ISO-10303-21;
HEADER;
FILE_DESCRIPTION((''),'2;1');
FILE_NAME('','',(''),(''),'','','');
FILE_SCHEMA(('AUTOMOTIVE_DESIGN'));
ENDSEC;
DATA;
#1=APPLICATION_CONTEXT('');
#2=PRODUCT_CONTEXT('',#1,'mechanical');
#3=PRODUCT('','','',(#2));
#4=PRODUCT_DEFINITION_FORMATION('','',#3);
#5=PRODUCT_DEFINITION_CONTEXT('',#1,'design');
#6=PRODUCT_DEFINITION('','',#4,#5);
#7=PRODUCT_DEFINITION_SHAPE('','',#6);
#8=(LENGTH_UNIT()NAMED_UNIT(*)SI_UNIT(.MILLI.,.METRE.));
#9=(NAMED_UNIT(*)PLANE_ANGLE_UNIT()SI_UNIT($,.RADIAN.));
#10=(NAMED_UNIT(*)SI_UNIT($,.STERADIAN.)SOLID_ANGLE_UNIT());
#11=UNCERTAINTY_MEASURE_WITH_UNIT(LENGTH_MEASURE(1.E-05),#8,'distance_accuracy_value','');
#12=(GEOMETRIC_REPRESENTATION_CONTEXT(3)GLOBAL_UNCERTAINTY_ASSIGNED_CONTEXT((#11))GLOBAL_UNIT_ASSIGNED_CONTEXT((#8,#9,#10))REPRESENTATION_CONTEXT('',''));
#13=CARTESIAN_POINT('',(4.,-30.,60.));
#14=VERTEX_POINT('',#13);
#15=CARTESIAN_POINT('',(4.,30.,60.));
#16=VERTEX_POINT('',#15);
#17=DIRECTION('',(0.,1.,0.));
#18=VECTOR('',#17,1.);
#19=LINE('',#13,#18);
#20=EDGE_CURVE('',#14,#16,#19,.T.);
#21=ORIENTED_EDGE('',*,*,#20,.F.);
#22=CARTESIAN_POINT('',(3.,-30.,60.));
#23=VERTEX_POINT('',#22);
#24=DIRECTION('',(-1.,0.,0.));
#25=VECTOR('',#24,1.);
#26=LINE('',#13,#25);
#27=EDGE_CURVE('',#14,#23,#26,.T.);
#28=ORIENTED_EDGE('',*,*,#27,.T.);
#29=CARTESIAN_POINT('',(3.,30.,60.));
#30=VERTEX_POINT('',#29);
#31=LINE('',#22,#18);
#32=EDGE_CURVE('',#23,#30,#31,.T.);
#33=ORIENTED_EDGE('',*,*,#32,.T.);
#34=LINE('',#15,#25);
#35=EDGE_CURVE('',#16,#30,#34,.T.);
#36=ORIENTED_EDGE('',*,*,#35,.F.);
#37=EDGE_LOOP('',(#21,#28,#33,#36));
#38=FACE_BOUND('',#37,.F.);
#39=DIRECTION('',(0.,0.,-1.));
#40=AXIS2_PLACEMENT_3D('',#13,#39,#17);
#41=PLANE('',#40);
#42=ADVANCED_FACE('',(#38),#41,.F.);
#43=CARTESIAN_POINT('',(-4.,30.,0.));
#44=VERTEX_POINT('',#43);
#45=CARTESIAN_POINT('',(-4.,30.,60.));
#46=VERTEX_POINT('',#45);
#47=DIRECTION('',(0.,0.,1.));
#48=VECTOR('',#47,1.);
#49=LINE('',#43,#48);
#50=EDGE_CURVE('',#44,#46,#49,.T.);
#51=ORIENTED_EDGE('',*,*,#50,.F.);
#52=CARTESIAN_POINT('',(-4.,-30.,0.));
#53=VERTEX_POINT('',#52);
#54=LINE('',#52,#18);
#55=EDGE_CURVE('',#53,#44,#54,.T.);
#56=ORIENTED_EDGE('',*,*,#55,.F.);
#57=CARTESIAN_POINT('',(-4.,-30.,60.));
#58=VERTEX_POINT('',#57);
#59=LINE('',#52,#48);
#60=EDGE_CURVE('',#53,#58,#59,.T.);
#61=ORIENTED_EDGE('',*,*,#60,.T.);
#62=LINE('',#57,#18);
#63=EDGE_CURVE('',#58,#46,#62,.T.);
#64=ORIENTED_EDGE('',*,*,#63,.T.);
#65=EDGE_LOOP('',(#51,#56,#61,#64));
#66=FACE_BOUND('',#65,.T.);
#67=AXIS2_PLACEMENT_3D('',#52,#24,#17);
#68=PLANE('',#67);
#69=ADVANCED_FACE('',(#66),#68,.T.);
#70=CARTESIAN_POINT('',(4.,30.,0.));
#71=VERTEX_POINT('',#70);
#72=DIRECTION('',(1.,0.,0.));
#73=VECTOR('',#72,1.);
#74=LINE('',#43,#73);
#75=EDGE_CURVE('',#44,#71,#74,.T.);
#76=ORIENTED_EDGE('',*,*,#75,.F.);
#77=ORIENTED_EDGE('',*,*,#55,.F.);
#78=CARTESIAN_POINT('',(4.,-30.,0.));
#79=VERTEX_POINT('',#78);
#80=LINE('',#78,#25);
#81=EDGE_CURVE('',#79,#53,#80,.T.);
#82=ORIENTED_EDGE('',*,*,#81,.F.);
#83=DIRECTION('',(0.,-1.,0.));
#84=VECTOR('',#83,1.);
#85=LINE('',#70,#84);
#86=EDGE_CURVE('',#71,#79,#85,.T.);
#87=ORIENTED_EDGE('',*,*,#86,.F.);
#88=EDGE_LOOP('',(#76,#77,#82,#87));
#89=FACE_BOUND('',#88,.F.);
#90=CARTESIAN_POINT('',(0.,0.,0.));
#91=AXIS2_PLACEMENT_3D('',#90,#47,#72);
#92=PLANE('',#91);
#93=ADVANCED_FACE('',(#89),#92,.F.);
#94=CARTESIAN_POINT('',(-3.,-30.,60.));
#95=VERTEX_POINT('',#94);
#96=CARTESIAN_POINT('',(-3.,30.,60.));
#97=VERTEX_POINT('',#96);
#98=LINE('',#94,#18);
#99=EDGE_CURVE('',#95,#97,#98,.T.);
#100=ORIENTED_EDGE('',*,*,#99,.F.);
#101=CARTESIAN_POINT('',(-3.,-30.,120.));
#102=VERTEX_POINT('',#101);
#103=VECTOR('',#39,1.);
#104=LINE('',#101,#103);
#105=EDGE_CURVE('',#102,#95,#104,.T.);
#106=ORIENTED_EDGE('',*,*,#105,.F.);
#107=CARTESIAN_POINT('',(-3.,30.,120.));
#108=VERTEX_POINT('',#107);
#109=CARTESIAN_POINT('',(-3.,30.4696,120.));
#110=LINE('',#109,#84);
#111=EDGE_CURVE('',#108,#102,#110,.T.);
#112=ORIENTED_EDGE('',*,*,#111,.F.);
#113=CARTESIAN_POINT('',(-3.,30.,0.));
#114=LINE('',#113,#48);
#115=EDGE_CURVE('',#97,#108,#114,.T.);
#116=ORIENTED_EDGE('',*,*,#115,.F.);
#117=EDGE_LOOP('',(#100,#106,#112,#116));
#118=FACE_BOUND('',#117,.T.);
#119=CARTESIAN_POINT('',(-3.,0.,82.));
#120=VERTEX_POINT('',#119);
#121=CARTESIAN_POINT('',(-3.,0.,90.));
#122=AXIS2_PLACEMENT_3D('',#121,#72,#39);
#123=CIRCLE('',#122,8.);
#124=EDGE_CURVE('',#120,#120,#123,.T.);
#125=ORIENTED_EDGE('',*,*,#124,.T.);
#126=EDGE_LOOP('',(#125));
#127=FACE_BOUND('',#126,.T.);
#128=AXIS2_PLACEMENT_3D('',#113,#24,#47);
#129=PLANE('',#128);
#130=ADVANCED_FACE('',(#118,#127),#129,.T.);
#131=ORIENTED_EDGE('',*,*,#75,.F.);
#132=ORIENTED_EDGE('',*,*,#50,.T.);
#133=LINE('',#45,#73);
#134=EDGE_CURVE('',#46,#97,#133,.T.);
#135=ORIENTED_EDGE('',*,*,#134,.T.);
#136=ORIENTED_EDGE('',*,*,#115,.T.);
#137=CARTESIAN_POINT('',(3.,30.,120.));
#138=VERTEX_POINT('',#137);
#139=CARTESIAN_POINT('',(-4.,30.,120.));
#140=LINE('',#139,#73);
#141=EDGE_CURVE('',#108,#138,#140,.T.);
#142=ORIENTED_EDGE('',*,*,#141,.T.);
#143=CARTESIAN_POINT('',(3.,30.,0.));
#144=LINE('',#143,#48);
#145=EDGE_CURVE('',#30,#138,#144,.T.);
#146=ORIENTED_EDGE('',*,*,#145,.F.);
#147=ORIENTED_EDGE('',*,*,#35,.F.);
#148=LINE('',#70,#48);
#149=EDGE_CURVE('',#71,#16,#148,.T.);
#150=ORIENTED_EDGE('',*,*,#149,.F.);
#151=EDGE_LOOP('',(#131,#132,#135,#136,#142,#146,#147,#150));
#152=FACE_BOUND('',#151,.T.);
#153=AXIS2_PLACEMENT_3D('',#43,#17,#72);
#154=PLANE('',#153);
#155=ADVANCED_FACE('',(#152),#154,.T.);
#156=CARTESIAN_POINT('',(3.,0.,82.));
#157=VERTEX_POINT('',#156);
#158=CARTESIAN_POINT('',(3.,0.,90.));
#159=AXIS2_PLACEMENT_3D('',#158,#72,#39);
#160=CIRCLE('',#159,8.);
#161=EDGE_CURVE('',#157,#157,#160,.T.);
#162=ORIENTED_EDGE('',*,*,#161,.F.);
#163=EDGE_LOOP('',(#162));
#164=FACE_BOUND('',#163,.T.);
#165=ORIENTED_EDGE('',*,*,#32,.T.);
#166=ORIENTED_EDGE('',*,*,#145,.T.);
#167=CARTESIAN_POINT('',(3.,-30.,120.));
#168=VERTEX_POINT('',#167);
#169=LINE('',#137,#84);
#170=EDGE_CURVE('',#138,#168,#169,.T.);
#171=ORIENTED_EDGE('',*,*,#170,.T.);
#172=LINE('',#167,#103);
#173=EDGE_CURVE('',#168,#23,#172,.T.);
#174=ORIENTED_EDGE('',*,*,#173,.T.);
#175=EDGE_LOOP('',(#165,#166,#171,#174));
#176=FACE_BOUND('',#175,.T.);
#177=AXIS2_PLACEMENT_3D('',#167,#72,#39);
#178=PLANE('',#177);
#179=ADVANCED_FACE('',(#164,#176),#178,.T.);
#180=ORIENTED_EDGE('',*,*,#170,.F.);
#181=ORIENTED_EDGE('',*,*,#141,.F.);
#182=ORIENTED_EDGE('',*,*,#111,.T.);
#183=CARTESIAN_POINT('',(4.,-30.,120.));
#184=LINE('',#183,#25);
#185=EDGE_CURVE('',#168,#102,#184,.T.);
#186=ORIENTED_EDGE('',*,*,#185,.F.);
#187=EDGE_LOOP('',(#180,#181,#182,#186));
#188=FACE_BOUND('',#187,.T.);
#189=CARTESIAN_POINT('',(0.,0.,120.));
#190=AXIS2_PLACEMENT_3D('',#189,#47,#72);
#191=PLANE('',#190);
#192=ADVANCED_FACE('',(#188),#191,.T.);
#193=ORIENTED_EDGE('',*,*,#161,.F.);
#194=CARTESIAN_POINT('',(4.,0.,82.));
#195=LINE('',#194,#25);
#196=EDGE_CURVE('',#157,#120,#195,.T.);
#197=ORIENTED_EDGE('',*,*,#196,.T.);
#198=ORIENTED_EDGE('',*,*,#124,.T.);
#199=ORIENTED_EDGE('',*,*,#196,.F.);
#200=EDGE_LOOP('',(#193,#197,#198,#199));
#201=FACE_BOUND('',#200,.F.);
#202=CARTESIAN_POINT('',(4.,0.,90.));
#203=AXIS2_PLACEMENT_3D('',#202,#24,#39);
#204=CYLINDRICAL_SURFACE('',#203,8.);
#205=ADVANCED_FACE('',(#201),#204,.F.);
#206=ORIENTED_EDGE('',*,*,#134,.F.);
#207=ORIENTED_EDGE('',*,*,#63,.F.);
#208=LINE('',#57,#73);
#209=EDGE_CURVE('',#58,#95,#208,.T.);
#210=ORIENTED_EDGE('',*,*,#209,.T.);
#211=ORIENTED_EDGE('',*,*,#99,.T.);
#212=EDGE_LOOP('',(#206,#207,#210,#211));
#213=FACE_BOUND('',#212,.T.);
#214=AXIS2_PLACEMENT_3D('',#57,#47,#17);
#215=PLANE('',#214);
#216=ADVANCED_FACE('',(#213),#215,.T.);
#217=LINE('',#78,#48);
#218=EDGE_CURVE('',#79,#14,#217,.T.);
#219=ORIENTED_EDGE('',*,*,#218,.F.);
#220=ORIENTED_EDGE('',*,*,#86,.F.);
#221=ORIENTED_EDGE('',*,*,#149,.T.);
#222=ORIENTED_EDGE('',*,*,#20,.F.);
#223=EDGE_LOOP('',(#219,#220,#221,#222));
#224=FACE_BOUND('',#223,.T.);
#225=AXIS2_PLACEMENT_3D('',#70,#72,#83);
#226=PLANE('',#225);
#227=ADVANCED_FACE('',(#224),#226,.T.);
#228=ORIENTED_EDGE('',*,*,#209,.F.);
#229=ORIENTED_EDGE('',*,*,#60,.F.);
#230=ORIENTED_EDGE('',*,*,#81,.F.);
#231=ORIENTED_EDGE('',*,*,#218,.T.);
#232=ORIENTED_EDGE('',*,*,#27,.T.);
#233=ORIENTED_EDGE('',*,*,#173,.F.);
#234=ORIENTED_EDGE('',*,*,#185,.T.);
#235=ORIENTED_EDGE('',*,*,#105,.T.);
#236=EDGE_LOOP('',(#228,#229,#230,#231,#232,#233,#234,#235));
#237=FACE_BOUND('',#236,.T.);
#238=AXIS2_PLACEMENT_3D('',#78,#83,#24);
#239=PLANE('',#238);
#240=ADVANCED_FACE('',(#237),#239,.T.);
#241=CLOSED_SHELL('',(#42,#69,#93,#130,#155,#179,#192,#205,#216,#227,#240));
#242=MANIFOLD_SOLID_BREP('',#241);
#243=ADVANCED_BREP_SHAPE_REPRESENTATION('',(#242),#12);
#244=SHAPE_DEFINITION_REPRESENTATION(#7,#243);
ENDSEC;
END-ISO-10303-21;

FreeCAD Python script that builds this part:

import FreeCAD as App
import Part
import Sketcher
Q = App.Units.Quantity


def add_polygon(sketch, points):
    """Adds a closed chain of lines whose ends are joined by coincident constraints."""
    first, n = sketch.GeometryCount, len(points)
    for a, b in zip(points, points[1:] + points[:1]):
        sketch.addGeometry(Part.LineSegment(App.Vector(*a, 0), App.Vector(*b, 0)), False)
    for i in range(n):
        sketch.addConstraint(Sketcher.Constraint("Coincident", first + i, 2, first + (i + 1) % n, 1))

doc = App.newDocument("Part")
body = doc.addObject("PartDesign::Body", "Body")

sketch1 = body.newObject("Sketcher::SketchObject", "Sketch")
sketch1.AttachmentSupport = (doc.getObject("XY_Plane"), [""])
sketch1.MapMode = "FlatFace"
add_polygon(sketch1, [(-4, -30), (4, -30), (4, 30), (-4, 30)])
sketch1.addConstraint(Sketcher.Constraint("Horizontal", 0))
sketch1.addConstraint(Sketcher.Constraint("Vertical", 1))
sketch1.addConstraint(Sketcher.Constraint("Horizontal", 2))
sketch1.addConstraint(Sketcher.Constraint("Vertical", 3))
sketch1.addConstraint(Sketcher.Constraint("Symmetric", 0, 2, 2, 2, -1, 1))
sketch1.addConstraint(Sketcher.Constraint("DistanceX", 0, 1, 0, 2, Q("8 mm")))
sketch1.addConstraint(Sketcher.Constraint("DistanceY", 1, 1, 1, 2, Q("60 mm")))
pad1 = body.newObject("PartDesign::Pad", "Pad")
pad1.Profile = sketch1
pad1.Length = 120

sketch2 = body.newObject("Sketcher::SketchObject", "Sketch001")
sketch2.AttachmentSupport = (doc.getObject("YZ_Plane"), [""])
sketch2.MapMode = "FlatFace"
sketch2.AttachmentOffset = App.Placement(App.Vector(0, 0, 4), App.Rotation())
sketch2.addGeometry(Part.Circle(App.Vector(0, 90, 0), App.Vector(0, 0, 1), 8), False)
sketch2.addConstraint(Sketcher.Constraint("PointOnObject", 0, 3, -2))
sketch2.addConstraint(Sketcher.Constraint("Diameter", 0, Q("16 mm")))
sketch2.addConstraint(Sketcher.Constraint("DistanceY", -1, 1, 0, 3, Q("90 mm")))
doc.recompute()
hole = body.newObject("PartDesign::Hole", "Hole")
hole.Profile = sketch2
hole.ThreadType = "None"
hole.Diameter = 16
hole.DepthType = "ThroughAll"

sketch3 = body.newObject("Sketcher::SketchObject", "Sketch002")
sketch3.AttachmentSupport = (doc.getObject("YZ_Plane"), [""])
sketch3.MapMode = "FlatFace"
sketch3.AttachmentOffset = App.Placement(App.Vector(0, 0, 4), App.Rotation())
add_polygon(sketch3, [(-30, 60), (30, 60), (30, 120), (-30, 120)])
sketch3.addGeometry(Part.Circle(App.Vector(0, 90, 0), App.Vector(0, 0, 1), 8), False)
sketch3.addConstraint(Sketcher.Constraint("Horizontal", 0))
sketch3.addConstraint(Sketcher.Constraint("Vertical", 1))
sketch3.addConstraint(Sketcher.Constraint("Horizontal", 2))
sketch3.addConstraint(Sketcher.Constraint("Vertical", 3))
sketch3.addConstraint(Sketcher.Constraint("PointOnObject", 4, 3, -2))
sketch3.addConstraint(Sketcher.Constraint("Equal", 2, 1))
sketch3.addConstraint(Sketcher.Constraint("DistanceX", 0, 1, 0, 2, Q("60 mm")))
sketch3.addConstraint(Sketcher.Constraint("Diameter", 4, Q("16 mm")))
sketch3.addConstraint(Sketcher.Constraint("DistanceY", -1, 1, 0, 2, Q("60 mm")))
sketch3.addConstraint(Sketcher.Constraint("DistanceY", -1, 1, 4, 3, Q("90 mm")))
sketch3.addConstraint(Sketcher.Constraint("DistanceX", -1, 1, 0, 2, Q("30 mm")))
pocket1 = body.newObject("PartDesign::Pocket", "Pocket")
pocket1.Profile = sketch3
pocket1.Length = 1

sketch4 = body.newObject("Sketcher::SketchObject", "Sketch003")
sketch4.AttachmentSupport = (doc.getObject("YZ_Plane"), [""])
sketch4.MapMode = "FlatFace"
sketch4.AttachmentOffset = App.Placement(App.Vector(0, 0, -4), App.Rotation())
add_polygon(sketch4, [(-30, 60), (-30, 120), (30, 120), (30, 60)])
sketch4.addGeometry(Part.Circle(App.Vector(0, 90, 0), App.Vector(0, 0, 1), 8), False)
sketch4.addConstraint(Sketcher.Constraint("Vertical", 0))
sketch4.addConstraint(Sketcher.Constraint("Horizontal", 1))
sketch4.addConstraint(Sketcher.Constraint("Vertical", 2))
sketch4.addConstraint(Sketcher.Constraint("Horizontal", 3))
sketch4.addConstraint(Sketcher.Constraint("PointOnObject", 4, 3, -2))
sketch4.addConstraint(Sketcher.Constraint("DistanceY", 0, 1, 0, 2, Q("60 mm")))
sketch4.addConstraint(Sketcher.Constraint("Diameter", 4, Q("16 mm")))
sketch4.addConstraint(Sketcher.Constraint("DistanceY", -1, 1, 2, 2, Q("60 mm")))
sketch4.addConstraint(Sketcher.Constraint("DistanceY", -1, 1, 4, 3, Q("90 mm")))
sketch4.addConstraint(Sketcher.Constraint("DistanceX", 0, 2, -1, 1, Q("30 mm")))
sketch4.addConstraint(Sketcher.Constraint("DistanceX", 1, 1, 1, 2, Q("60.4696 mm")))
pocket2 = body.newObject("PartDesign::Pocket", "Pocket001")
pocket2.Profile = sketch4
pocket2.Length = 1
pocket2.Reversed = True

doc.recompute()
